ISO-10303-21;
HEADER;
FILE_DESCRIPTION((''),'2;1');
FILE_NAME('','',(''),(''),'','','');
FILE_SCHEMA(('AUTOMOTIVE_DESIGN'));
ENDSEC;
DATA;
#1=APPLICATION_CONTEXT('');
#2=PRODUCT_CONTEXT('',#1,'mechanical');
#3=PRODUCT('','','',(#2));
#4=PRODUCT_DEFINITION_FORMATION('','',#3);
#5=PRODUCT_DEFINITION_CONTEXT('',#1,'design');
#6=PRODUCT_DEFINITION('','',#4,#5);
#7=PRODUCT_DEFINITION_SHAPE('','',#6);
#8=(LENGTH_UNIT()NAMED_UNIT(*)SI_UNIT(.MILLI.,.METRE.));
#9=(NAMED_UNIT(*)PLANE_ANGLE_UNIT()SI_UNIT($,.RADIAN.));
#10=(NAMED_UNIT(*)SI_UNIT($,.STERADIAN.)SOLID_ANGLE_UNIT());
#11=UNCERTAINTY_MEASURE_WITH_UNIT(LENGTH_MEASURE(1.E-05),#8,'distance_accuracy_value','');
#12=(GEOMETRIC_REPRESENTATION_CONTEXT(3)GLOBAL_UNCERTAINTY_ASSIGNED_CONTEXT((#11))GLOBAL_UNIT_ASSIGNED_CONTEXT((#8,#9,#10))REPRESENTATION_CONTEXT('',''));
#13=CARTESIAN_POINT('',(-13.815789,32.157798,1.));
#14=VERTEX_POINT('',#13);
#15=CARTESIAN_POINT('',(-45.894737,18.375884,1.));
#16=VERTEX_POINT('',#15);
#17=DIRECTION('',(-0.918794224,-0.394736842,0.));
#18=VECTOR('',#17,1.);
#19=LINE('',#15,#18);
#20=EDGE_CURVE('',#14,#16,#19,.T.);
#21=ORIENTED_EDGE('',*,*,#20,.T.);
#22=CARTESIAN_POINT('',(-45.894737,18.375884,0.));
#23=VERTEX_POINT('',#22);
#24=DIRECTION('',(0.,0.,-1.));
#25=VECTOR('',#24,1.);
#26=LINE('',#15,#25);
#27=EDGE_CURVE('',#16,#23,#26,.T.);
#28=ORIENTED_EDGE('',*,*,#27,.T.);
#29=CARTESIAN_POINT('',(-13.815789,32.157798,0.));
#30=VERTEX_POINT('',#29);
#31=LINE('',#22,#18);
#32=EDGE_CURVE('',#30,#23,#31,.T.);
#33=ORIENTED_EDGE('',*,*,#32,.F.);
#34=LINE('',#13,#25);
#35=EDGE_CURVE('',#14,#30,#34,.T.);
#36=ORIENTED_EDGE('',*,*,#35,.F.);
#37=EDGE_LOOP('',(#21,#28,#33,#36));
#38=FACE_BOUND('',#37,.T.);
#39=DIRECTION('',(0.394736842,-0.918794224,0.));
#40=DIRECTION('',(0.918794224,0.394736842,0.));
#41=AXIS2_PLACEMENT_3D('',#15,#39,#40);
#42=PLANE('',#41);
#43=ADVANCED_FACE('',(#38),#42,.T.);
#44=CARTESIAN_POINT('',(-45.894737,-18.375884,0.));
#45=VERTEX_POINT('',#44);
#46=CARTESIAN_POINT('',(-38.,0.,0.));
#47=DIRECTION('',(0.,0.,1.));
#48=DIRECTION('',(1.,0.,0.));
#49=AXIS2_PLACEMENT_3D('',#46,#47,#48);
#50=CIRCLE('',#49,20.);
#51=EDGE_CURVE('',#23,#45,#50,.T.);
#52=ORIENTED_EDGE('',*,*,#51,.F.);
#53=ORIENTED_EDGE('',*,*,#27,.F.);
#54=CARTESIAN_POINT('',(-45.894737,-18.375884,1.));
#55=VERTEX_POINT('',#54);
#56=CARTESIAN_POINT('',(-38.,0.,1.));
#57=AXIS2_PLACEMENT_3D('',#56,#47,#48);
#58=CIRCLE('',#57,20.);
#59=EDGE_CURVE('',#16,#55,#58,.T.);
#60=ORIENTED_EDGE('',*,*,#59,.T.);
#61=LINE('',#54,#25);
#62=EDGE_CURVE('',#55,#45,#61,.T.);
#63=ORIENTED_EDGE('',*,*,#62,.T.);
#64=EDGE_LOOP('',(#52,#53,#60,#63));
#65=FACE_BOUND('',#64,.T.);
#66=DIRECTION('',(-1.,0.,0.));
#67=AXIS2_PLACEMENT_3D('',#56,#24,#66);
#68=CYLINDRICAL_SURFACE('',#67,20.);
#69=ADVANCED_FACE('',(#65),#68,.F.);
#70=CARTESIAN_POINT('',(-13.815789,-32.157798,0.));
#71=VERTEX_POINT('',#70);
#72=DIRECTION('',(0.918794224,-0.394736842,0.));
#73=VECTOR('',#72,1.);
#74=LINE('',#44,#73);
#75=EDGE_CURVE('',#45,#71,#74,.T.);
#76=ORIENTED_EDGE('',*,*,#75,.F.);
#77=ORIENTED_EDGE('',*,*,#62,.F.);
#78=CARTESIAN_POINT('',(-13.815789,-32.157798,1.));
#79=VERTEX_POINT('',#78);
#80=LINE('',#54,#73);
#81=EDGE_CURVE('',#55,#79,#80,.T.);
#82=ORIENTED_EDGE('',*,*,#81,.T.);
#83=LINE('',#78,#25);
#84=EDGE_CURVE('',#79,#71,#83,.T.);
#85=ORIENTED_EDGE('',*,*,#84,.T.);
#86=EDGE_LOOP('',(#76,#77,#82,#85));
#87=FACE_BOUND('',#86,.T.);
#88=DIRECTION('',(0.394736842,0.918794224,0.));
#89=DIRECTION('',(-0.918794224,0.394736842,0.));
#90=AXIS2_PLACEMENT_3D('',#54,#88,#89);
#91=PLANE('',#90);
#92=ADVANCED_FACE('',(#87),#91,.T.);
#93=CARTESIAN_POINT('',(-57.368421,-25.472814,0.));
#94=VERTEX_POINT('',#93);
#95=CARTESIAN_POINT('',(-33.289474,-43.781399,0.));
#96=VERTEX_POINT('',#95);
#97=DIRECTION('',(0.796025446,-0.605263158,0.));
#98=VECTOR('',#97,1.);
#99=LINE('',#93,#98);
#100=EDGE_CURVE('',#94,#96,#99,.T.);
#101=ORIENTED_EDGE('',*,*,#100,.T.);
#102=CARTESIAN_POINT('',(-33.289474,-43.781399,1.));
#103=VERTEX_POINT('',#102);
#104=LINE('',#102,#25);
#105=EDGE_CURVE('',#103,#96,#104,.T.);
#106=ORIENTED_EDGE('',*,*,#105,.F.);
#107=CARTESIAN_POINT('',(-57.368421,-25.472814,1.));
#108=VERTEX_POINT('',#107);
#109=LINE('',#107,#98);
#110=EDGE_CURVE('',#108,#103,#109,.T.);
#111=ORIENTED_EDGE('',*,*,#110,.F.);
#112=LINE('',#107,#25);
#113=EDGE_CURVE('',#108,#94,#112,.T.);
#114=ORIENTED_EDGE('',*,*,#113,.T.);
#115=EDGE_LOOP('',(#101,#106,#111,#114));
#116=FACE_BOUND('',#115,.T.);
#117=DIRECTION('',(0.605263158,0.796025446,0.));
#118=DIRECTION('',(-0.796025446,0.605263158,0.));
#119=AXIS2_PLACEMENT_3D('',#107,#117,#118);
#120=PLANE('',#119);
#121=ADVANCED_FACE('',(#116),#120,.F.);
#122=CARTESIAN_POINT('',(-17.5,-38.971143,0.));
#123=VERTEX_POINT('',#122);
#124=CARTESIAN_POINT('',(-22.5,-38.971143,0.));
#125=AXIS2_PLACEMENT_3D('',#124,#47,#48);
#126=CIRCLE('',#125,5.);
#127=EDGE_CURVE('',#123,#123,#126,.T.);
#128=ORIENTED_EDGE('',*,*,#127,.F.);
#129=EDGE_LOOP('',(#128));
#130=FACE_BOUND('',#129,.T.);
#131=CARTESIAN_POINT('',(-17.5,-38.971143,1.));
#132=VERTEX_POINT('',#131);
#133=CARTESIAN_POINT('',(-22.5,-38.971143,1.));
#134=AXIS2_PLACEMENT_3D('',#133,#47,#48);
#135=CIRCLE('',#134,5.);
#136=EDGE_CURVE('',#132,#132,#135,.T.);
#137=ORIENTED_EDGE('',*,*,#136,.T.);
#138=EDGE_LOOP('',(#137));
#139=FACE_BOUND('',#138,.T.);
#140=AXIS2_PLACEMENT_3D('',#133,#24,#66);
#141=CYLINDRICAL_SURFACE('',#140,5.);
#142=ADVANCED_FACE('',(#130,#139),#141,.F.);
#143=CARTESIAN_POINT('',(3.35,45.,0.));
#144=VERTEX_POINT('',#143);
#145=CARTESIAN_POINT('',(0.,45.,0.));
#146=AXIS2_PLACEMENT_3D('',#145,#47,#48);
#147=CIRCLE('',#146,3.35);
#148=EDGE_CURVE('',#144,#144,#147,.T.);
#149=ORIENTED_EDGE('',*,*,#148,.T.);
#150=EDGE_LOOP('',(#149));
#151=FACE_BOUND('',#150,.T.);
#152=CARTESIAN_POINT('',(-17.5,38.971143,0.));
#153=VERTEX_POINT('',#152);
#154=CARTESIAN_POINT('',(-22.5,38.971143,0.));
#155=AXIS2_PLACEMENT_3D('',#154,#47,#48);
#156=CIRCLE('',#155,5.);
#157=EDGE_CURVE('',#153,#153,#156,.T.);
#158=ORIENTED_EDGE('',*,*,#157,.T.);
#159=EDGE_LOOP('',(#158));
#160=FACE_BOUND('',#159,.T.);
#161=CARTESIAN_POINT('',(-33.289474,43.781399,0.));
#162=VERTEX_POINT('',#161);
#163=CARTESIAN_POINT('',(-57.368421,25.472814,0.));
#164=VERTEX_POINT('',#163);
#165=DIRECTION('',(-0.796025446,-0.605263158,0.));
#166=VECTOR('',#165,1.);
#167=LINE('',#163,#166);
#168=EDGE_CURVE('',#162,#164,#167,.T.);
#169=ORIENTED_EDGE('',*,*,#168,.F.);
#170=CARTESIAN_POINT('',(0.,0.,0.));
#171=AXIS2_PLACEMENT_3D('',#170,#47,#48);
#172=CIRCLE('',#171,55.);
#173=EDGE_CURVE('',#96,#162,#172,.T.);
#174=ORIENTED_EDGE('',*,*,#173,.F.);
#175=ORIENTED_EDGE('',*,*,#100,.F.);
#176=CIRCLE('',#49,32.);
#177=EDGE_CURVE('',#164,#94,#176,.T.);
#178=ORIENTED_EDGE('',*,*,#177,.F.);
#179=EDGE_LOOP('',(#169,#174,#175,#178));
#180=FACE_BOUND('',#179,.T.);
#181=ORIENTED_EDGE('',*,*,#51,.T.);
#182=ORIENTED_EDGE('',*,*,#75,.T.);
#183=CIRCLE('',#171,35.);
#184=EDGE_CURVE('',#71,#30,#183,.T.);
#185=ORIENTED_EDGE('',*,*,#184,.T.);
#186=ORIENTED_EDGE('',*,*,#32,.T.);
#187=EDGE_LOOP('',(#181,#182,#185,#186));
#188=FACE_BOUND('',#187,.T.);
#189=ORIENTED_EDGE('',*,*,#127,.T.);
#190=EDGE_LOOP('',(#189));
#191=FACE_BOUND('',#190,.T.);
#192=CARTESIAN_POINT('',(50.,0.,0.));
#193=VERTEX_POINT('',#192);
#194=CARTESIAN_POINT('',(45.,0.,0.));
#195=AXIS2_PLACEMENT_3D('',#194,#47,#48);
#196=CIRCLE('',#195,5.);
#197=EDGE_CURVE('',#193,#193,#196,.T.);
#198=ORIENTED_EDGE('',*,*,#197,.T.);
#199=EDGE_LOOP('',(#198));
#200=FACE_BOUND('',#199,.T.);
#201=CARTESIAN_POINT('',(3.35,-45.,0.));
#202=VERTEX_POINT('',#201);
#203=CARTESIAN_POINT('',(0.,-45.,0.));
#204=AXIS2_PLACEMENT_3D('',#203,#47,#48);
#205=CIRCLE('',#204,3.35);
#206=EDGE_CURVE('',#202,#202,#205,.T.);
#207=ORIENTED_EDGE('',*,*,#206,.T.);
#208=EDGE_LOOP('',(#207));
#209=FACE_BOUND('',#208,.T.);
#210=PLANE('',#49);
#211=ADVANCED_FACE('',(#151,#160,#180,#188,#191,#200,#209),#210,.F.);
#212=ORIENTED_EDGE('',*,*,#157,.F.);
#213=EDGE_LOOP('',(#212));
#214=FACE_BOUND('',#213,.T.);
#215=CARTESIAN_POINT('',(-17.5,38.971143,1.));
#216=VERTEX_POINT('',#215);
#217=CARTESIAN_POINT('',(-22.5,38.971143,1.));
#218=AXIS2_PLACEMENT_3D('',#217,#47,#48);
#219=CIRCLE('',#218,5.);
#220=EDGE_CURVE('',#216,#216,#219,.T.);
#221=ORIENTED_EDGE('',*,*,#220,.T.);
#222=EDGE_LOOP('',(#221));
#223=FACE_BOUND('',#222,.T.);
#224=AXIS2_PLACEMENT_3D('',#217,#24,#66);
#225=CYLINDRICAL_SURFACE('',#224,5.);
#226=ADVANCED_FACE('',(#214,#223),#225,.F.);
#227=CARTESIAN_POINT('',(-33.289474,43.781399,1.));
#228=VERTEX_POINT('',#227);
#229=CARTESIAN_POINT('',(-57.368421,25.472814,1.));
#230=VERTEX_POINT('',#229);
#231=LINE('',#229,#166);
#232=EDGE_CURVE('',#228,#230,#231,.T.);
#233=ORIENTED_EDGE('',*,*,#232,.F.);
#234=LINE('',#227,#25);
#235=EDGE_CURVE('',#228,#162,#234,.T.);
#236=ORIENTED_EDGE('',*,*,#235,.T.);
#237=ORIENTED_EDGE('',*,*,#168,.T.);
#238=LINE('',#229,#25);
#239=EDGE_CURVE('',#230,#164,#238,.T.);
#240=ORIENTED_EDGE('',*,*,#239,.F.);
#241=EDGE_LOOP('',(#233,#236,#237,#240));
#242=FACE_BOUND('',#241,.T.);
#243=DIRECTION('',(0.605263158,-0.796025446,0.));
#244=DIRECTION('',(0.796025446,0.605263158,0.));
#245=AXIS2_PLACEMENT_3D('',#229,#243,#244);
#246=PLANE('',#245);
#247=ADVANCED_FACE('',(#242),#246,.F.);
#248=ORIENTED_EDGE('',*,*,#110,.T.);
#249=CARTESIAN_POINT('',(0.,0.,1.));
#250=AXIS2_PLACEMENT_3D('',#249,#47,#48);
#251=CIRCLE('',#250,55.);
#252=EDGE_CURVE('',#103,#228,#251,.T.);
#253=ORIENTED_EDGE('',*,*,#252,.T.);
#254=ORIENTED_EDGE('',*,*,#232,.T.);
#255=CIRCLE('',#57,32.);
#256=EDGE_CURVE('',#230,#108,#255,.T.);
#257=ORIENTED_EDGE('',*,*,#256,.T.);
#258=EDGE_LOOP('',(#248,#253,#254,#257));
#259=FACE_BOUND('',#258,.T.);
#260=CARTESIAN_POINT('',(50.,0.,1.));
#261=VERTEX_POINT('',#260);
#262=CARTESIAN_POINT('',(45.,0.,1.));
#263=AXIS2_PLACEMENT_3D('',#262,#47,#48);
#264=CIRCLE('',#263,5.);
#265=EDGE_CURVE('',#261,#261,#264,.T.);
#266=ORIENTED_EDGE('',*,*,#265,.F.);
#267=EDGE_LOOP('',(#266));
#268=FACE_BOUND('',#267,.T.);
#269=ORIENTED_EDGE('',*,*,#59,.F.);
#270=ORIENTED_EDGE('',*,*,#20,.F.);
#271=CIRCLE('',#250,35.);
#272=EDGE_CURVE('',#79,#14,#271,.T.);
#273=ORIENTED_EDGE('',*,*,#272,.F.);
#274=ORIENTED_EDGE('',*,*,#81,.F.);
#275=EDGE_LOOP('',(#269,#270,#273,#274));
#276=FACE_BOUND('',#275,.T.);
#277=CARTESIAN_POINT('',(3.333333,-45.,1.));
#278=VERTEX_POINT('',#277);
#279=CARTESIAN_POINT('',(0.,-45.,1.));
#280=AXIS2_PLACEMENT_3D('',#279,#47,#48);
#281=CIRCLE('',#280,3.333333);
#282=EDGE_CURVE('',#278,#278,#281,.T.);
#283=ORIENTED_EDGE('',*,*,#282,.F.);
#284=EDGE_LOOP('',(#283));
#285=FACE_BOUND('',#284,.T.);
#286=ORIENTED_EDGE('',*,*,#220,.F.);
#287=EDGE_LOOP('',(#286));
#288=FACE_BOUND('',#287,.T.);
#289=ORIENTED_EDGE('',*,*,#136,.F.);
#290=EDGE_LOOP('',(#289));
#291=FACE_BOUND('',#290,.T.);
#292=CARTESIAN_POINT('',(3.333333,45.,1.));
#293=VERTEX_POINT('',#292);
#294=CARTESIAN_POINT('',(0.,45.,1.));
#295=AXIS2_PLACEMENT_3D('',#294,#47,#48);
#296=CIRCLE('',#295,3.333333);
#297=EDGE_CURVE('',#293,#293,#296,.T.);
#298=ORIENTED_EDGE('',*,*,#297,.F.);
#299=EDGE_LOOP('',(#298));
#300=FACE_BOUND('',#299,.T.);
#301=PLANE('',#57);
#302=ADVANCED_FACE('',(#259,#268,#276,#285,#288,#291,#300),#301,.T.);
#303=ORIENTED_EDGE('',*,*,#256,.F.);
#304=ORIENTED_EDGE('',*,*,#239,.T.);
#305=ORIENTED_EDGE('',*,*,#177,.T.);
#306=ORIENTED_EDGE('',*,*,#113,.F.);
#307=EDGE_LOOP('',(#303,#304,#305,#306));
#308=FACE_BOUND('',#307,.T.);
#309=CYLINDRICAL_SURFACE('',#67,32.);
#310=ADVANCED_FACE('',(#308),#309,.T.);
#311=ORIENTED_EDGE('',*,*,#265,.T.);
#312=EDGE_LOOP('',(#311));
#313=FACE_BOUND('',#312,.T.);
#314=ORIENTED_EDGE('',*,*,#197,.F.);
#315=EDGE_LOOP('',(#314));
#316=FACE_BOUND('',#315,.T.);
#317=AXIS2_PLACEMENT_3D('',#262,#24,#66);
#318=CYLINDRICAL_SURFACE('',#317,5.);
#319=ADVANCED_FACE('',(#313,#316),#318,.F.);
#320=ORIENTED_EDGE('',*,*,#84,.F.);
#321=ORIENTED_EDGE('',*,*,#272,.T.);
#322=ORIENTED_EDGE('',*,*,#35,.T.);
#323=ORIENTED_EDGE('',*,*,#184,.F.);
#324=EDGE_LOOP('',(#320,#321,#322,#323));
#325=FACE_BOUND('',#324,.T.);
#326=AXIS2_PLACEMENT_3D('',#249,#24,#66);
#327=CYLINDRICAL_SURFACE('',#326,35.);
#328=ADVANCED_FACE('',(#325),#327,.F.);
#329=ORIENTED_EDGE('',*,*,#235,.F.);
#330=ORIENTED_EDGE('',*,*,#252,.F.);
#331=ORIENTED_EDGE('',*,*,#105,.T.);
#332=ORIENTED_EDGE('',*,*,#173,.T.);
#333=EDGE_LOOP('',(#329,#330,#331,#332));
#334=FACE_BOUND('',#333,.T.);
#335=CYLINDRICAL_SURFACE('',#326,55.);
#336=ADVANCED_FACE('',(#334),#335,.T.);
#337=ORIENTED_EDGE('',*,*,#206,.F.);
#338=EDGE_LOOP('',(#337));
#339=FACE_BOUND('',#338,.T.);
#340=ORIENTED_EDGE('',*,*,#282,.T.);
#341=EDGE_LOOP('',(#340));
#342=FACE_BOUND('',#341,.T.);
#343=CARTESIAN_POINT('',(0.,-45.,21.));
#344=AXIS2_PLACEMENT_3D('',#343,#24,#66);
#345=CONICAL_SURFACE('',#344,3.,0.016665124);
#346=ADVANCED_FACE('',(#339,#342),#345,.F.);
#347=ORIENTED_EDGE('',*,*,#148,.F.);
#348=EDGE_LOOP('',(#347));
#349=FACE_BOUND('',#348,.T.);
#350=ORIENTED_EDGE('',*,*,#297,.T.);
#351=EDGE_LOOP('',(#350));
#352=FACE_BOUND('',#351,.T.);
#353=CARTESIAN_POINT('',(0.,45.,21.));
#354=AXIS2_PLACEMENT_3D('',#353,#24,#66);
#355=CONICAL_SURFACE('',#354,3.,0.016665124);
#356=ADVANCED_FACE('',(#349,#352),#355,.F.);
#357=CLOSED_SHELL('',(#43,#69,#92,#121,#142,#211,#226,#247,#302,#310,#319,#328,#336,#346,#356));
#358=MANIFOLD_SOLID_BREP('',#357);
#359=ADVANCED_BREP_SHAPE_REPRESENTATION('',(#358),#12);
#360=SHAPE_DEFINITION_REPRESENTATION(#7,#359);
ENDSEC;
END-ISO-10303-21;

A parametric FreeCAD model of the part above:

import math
import FreeCAD as App
import Part
import Sketcher

V = App.Vector
Q = App.Units.Quantity

doc = App.newDocument("Part")
body = doc.addObject("PartDesign::Body", "Body")

# Sketch on XY plane
sketch1 = body.newObject("Sketcher::SketchObject", "Sketch")
sketch1.AttachmentSupport = (doc.getObject("XY_Plane"), [""])
sketch1.MapMode = "FlatFace"
sketch1.addGeometry(Part.LineSegment(V(-33, 44, 0), V(-57, 25, 0)), False)
sketch1.addGeometry(Part.ArcOfCircle(Part.Circle(V(-38, 0, 0), V(0, 0, 1), 32), math.radians(127), math.radians(233)), False)
sketch1.addGeometry(Part.LineSegment(V(-57, -25, 0), V(-33, -44, 0)), False)
sketch1.addGeometry(Part.ArcOfCircle(Part.Circle(V(0, 0, 0), V(0, 0, 1), 55), math.radians(-127), math.radians(127)), False)
sketch1.addGeometry(Part.Circle(V(-22, -39, 0), V(0, 0, 1), 5), False)
sketch1.addGeometry(Part.Circle(V(45, 0, 0), V(0, 0, 1), 5), False)
sketch1.addGeometry(Part.LineSegment(V(-46, 18, 0), V(-14, 32, 0)), False)
sketch1.addGeometry(Part.ArcOfCircle(Part.Circle(V(0, 0, 0), V(0, 0, 1), 35), math.radians(-113), math.radians(113)), False)
sketch1.addGeometry(Part.LineSegment(V(-14, -32, 0), V(-46, -18, 0)), False)
sketch1.addGeometry(Part.ArcOfCircle(Part.Circle(V(-38, 0, 0), V(0, 0, 1), 20), math.radians(113), math.radians(247)), False)
sketch1.addGeometry(Part.Circle(V(-22, 39, 0), V(0, 0, 1), 5), False)
sketch1.addConstraint(Sketcher.Constraint("Tangent", 0, 2, 1, 1))
sketch1.addConstraint(Sketcher.Constraint("Tangent", 1, 2, 2, 1))
sketch1.addConstraint(Sketcher.Constraint("Tangent", 2, 2, 3, 1))
sketch1.addConstraint(Sketcher.Constraint("Tangent", 3, 2, 0, 1))
sketch1.addConstraint(Sketcher.Constraint("Tangent", 6, 2, 7, 2))
sketch1.addConstraint(Sketcher.Constraint("Tangent", 7, 1, 8, 1))
sketch1.addConstraint(Sketcher.Constraint("Tangent", 8, 2, 9, 2))
sketch1.addConstraint(Sketcher.Constraint("Tangent", 9, 1, 6, 1))
sketch1.addConstraint(Sketcher.Constraint("Coincident", 3, 3, -1, 1))
sketch1.addConstraint(Sketcher.Constraint("Coincident", 7, 3, -1, 1))
sketch1.addConstraint(Sketcher.Constraint("Coincident", 9, 3, 1, 3))
sketch1.addConstraint(Sketcher.Constraint("Equal", 4, 5))
sketch1.addConstraint(Sketcher.Constraint("Equal", 5, 10))
sketch1.addConstraint(Sketcher.Constraint("Symmetric", 4, 3, 10, 3, -1))
sketch1.addConstraint(Sketcher.Constraint("PointOnObject", 1, 3, -1))
sketch1.addConstraint(Sketcher.Constraint("PointOnObject", 5, 3, -1))
sketch1.addConstraint(Sketcher.Constraint("Diameter", 4, Q("10 mm")))
sketch1.addConstraint(Sketcher.Constraint("Radius", 1, Q("32 mm")))
sketch1.addConstraint(Sketcher.Constraint("Radius", 3, Q("55 mm")))
sketch1.addConstraint(Sketcher.Constraint("Radius", 7, Q("35 mm")))
sketch1.addConstraint(Sketcher.Constraint("Radius", 9, Q("20 mm")))
sketch1.addConstraint(Sketcher.Constraint("DistanceX", 1, 3, -1, 1, Q("38 mm")))
sketch1.addConstraint(Sketcher.Constraint("DistanceX", -1, 1, 5, 3, Q("45 mm")))
sketch1.addConstraint(Sketcher.Constraint("DistanceX", 4, 3, -1, 1, Q("22.5 mm")))
sketch1.addConstraint(Sketcher.Constraint("DistanceY", 0, 2, 10, 3, Q("13.498329 mm")))
pad1 = body.newObject("PartDesign::Pad", "Pad")
pad1.Profile = sketch1
pad1.Length = 1

# Sketch on XY plane
sketch2 = body.newObject("Sketcher::SketchObject", "Sketch001")
sketch2.AttachmentSupport = (doc.getObject("XY_Plane"), [""])
sketch2.MapMode = "FlatFace"
sketch2.AttachmentOffset = App.Placement(V(0, 0, 21), App.Rotation())
sketch2.addGeometry(Part.Circle(V(0, 45, 0), V(0, 0, 1), 3), False)
sketch2.addConstraint(Sketcher.Constraint("PointOnObject", 0, 3, -2))
sketch2.addConstraint(Sketcher.Constraint("Diameter", 0, Q("6 mm")))
sketch2.addConstraint(Sketcher.Constraint("DistanceY", -1, 1, 0, 3, Q("45 mm")))

# Sketch on XY plane
sketch3 = body.newObject("Sketcher::SketchObject", "Sketch002")
sketch3.AttachmentSupport = (doc.getObject("XY_Plane"), [""])
sketch3.MapMode = "FlatFace"
sketch3.AttachmentOffset = App.Placement(V(0, 0, -24), App.Rotation())
sketch3.addGeometry(Part.Circle(V(0, 45, 0), V(0, 0, 1), 3.8), False)
sketch3.addConstraint(Sketcher.Constraint("PointOnObject", 0, 3, -2))
sketch3.addConstraint(Sketcher.Constraint("Diameter", 0, Q("7.5 mm")))
sketch3.addConstraint(Sketcher.Constraint("DistanceY", -1, 1, 0, 3, Q("45 mm")))

subtractiveloft = body.newObject("PartDesign::SubtractiveLoft", "SubtractiveLoft")
subtractiveloft.Profile = sketch2
subtractiveloft.Sections = [sketch3]
doc.recompute()

mirrored = body.newObject("PartDesign::Mirrored", "Mirrored")
mirrored.Originals = [subtractiveloft]
mirrored.MirrorPlane = (doc.getObject("XZ_Plane"), [""])
body.Tip = mirrored

doc.recompute()
